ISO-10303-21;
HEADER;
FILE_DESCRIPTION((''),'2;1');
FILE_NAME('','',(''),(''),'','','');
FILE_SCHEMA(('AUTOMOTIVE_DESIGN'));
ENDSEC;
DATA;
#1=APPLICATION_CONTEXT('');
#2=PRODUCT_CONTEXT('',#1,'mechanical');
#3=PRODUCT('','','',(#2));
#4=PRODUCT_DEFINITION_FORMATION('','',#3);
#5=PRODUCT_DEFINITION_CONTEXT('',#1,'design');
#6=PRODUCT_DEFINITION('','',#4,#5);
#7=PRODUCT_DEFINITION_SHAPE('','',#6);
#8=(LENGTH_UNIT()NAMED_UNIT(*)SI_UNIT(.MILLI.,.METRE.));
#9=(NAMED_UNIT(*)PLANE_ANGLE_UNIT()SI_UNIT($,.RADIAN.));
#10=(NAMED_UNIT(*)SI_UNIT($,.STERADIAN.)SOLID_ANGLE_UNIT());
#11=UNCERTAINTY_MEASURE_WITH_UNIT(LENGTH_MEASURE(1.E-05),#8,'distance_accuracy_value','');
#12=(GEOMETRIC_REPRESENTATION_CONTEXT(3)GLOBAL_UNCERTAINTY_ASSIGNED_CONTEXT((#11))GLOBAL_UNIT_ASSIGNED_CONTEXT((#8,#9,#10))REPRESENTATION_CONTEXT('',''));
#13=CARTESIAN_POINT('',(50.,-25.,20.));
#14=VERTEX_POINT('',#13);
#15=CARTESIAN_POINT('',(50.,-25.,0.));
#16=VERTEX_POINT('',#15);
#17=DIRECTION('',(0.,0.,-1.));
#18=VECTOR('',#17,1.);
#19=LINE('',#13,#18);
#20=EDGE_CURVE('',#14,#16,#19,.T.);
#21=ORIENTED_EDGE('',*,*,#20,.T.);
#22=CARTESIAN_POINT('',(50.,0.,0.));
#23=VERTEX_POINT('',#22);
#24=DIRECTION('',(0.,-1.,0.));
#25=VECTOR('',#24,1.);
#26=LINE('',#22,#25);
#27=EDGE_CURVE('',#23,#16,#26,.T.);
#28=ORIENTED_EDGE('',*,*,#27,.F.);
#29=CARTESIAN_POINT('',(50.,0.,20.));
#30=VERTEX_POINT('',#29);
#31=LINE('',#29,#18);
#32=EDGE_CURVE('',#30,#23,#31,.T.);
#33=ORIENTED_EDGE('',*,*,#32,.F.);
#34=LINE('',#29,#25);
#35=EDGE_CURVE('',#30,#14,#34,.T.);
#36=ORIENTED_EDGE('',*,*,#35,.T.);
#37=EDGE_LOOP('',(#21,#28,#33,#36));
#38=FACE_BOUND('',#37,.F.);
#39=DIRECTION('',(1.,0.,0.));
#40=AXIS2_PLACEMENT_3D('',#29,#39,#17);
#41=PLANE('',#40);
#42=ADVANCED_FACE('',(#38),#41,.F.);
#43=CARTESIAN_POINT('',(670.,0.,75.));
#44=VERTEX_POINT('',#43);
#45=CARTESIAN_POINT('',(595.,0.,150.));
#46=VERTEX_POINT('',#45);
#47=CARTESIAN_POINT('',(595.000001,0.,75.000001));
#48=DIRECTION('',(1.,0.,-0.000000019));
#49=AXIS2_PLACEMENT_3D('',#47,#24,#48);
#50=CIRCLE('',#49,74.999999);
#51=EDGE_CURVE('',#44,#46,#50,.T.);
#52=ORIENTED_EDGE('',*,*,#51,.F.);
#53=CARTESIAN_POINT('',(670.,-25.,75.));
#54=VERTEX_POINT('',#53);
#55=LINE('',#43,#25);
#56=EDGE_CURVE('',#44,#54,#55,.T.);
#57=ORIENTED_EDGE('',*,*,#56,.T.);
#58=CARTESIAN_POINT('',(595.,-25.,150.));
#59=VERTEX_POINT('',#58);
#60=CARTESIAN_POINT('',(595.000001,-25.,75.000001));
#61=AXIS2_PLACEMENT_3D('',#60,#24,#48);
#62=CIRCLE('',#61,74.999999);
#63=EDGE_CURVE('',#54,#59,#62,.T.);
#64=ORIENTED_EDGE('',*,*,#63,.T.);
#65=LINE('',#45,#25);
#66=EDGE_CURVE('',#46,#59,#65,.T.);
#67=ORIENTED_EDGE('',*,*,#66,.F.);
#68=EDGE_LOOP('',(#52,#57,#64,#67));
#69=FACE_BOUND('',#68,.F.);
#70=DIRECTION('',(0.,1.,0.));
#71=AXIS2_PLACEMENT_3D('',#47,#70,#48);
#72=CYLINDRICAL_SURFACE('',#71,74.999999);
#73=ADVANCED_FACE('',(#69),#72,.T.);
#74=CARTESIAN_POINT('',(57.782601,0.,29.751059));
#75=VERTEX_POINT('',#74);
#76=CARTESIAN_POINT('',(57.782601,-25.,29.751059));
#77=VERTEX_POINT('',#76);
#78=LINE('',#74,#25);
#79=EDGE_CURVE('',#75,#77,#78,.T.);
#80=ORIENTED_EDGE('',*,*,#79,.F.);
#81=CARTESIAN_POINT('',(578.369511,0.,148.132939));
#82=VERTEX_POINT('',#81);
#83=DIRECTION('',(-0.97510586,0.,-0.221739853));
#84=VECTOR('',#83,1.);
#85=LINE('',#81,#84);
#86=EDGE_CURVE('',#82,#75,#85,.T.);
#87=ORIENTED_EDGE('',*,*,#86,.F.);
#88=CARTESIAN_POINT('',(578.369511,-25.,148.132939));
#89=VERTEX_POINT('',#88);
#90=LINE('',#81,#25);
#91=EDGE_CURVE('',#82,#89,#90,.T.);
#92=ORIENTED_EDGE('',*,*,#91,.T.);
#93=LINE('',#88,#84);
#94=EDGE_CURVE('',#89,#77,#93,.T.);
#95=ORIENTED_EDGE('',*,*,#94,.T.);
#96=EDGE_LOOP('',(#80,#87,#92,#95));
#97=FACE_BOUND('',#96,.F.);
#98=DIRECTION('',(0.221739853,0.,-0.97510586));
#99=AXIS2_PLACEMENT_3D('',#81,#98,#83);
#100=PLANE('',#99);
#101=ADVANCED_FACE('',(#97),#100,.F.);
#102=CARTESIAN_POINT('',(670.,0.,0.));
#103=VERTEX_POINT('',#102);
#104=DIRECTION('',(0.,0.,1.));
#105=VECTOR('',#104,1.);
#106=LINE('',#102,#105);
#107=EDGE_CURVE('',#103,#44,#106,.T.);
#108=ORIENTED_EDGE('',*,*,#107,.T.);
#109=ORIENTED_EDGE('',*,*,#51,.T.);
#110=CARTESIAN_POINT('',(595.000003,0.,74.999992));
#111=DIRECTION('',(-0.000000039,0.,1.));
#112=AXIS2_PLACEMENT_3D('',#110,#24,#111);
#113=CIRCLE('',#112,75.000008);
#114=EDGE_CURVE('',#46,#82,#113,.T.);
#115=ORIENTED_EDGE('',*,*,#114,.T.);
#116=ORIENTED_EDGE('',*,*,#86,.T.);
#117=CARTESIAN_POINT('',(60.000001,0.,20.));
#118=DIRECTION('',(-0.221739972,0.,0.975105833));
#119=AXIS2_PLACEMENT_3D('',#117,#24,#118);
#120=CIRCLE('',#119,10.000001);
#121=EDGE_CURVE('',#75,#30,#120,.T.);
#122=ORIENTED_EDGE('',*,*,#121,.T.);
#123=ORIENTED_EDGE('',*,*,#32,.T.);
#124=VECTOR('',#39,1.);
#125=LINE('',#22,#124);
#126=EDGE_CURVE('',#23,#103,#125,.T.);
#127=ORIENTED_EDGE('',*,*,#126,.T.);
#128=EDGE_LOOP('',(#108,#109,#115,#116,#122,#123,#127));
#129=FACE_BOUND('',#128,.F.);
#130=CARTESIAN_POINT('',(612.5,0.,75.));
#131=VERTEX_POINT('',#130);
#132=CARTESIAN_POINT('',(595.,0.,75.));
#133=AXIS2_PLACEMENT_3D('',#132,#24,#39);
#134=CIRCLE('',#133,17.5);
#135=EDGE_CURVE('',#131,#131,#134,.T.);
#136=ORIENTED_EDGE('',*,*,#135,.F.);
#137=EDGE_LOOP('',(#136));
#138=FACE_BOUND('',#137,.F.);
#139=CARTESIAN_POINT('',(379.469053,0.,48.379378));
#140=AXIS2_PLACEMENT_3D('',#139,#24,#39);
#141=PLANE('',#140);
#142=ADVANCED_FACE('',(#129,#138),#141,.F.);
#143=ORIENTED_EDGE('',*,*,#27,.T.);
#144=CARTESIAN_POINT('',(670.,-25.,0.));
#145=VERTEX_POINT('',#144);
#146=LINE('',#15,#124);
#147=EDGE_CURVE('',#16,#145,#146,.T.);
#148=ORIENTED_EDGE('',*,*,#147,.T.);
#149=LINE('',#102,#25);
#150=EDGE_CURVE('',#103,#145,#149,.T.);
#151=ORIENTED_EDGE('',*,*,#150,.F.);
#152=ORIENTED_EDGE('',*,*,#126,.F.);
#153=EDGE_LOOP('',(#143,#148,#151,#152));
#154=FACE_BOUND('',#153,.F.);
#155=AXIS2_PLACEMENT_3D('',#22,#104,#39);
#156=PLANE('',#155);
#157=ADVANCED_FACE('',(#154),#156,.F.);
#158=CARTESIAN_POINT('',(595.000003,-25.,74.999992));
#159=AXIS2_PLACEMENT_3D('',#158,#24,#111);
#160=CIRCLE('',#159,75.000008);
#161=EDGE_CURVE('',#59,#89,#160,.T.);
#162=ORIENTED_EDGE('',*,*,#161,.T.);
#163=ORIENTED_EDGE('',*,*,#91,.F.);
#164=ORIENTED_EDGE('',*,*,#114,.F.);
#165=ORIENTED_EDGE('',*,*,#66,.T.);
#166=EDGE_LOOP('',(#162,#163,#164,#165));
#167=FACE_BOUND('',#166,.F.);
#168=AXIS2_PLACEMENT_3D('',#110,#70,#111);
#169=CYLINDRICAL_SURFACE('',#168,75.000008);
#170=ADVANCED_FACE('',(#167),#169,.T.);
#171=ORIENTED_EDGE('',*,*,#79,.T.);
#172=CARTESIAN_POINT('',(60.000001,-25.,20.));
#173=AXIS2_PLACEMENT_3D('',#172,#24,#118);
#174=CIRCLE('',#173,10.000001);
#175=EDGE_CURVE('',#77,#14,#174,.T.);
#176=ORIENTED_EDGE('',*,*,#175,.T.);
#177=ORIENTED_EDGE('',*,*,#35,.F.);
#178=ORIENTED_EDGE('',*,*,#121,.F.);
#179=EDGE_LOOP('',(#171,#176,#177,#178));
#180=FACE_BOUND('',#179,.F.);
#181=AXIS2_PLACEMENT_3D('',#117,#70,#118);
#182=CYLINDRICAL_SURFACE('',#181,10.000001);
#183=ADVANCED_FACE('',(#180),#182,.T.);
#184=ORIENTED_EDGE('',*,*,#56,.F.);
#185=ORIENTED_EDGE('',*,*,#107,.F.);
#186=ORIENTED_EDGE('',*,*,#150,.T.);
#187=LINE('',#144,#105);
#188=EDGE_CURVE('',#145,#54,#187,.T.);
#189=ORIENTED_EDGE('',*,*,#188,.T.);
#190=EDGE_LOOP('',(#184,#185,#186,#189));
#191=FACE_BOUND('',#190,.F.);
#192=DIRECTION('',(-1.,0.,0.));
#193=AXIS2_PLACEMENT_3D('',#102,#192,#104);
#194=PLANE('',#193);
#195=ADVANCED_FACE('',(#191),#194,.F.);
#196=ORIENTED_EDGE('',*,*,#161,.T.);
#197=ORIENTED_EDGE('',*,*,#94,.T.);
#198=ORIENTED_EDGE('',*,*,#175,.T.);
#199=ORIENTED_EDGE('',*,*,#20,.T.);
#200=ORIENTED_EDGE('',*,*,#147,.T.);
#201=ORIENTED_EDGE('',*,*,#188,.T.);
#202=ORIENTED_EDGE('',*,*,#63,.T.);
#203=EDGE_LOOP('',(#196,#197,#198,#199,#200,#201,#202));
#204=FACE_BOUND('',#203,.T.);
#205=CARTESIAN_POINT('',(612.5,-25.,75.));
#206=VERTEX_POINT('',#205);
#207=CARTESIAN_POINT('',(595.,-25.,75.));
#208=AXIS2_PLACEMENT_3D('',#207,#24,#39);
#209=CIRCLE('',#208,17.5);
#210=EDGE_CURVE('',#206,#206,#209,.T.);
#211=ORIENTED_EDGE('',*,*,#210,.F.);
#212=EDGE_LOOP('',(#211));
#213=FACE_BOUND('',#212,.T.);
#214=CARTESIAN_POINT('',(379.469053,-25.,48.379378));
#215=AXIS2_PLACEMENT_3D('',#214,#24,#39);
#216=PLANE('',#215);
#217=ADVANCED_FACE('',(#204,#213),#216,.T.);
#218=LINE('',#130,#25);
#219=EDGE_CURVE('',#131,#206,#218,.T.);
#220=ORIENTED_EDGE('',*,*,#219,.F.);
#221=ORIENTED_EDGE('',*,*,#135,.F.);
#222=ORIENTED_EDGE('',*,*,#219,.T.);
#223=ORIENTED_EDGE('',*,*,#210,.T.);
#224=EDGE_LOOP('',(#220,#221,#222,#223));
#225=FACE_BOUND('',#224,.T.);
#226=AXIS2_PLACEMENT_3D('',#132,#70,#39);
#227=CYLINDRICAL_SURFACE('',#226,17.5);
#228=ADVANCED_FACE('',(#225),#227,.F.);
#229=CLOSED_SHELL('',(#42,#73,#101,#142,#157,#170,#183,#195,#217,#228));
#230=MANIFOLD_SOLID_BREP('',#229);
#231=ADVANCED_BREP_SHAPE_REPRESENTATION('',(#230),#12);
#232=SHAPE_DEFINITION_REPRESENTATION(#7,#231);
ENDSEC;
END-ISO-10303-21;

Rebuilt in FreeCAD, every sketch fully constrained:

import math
import FreeCAD as App
import Part
import Sketcher
from FreeCAD import Vector

doc = App.newDocument("Part")
body = doc.addObject("PartDesign::Body", "Body")

# Sketch on XZ plane
sketch1 = doc.addObject("Sketcher::SketchObject", "Sketch")
body.addObject(sketch1)
sketch1.AttachmentSupport = (doc.XZ_Plane, [""])
sketch1.MapMode = "FlatFace"
sketch1.addGeometry([
    Part.LineSegment(Vector(50, 20, 0), Vector(50, 0, 0)),  # 0
    Part.LineSegment(Vector(50, 0, 0), Vector(670, 0, 0)),  # 1
    Part.LineSegment(Vector(670, 0, 0), Vector(670, 75, 0)),  # 2
    Part.ArcOfCircle(Part.Circle(Vector(595, 75, 0), Vector(0, 0, 1), 75), math.radians(0), math.radians(90)),  # 3
    Part.ArcOfCircle(Part.Circle(Vector(595, 75, 0), Vector(0, 0, 1), 75), math.radians(90), math.radians(102.81)),  # 4
    Part.LineSegment(Vector(578, 148, 0), Vector(58, 30, 0)),  # 5
    Part.ArcOfCircle(Part.Circle(Vector(60, 20, 0), Vector(0, 0, 1), 10), math.radians(103), math.radians(180)),  # 6
    Part.Circle(Vector(595, 75, 0), Vector(0, 0, 1), 18),  # 7
], False)
sketch1.addConstraint([
    Sketcher.Constraint("Coincident", 0, 2, 1, 1),
    Sketcher.Constraint("Coincident", 1, 2, 2, 1),
    Sketcher.Constraint("Tangent", 2, 2, 3, 1),
    Sketcher.Constraint("Tangent", 3, 2, 4, 1),
    Sketcher.Constraint("Tangent", 4, 2, 5, 1),
    Sketcher.Constraint("Tangent", 5, 2, 6, 1),
    Sketcher.Constraint("Tangent", 6, 2, 0, 1),
    Sketcher.Constraint("Vertical", 0),
    Sketcher.Constraint("Horizontal", 1),
    Sketcher.Constraint("Vertical", 2),
    Sketcher.Constraint("Coincident", 7, 3, 3, 3),
    Sketcher.Constraint("PointOnObject", 0, 2, -1),
    Sketcher.Constraint("Vertical", 7, 3, 3, 2),
    Sketcher.Constraint("Diameter", 7, 35.0),
    Sketcher.Constraint("Radius", 3, 74.999999),
    Sketcher.Constraint("Radius", 6, 10.000001),
    Sketcher.Constraint("DistanceX", 1, 1, 1, 2, 620.0),
    Sketcher.Constraint("DistanceY", 0, 2, 0, 1, 20.0),
    Sketcher.Constraint("DistanceY", 2, 1, 2, 2, 75.0),
    Sketcher.Constraint("DistanceX", -1, 1, 3, 3, 595.000001),
    Sketcher.Constraint("Radius", 4, 75.000008),
])
pad1 = doc.addObject("PartDesign::Pad", "Pad")
body.addObject(pad1)
pad1.Profile = sketch1
pad1.Length = 25

doc.recompute()
